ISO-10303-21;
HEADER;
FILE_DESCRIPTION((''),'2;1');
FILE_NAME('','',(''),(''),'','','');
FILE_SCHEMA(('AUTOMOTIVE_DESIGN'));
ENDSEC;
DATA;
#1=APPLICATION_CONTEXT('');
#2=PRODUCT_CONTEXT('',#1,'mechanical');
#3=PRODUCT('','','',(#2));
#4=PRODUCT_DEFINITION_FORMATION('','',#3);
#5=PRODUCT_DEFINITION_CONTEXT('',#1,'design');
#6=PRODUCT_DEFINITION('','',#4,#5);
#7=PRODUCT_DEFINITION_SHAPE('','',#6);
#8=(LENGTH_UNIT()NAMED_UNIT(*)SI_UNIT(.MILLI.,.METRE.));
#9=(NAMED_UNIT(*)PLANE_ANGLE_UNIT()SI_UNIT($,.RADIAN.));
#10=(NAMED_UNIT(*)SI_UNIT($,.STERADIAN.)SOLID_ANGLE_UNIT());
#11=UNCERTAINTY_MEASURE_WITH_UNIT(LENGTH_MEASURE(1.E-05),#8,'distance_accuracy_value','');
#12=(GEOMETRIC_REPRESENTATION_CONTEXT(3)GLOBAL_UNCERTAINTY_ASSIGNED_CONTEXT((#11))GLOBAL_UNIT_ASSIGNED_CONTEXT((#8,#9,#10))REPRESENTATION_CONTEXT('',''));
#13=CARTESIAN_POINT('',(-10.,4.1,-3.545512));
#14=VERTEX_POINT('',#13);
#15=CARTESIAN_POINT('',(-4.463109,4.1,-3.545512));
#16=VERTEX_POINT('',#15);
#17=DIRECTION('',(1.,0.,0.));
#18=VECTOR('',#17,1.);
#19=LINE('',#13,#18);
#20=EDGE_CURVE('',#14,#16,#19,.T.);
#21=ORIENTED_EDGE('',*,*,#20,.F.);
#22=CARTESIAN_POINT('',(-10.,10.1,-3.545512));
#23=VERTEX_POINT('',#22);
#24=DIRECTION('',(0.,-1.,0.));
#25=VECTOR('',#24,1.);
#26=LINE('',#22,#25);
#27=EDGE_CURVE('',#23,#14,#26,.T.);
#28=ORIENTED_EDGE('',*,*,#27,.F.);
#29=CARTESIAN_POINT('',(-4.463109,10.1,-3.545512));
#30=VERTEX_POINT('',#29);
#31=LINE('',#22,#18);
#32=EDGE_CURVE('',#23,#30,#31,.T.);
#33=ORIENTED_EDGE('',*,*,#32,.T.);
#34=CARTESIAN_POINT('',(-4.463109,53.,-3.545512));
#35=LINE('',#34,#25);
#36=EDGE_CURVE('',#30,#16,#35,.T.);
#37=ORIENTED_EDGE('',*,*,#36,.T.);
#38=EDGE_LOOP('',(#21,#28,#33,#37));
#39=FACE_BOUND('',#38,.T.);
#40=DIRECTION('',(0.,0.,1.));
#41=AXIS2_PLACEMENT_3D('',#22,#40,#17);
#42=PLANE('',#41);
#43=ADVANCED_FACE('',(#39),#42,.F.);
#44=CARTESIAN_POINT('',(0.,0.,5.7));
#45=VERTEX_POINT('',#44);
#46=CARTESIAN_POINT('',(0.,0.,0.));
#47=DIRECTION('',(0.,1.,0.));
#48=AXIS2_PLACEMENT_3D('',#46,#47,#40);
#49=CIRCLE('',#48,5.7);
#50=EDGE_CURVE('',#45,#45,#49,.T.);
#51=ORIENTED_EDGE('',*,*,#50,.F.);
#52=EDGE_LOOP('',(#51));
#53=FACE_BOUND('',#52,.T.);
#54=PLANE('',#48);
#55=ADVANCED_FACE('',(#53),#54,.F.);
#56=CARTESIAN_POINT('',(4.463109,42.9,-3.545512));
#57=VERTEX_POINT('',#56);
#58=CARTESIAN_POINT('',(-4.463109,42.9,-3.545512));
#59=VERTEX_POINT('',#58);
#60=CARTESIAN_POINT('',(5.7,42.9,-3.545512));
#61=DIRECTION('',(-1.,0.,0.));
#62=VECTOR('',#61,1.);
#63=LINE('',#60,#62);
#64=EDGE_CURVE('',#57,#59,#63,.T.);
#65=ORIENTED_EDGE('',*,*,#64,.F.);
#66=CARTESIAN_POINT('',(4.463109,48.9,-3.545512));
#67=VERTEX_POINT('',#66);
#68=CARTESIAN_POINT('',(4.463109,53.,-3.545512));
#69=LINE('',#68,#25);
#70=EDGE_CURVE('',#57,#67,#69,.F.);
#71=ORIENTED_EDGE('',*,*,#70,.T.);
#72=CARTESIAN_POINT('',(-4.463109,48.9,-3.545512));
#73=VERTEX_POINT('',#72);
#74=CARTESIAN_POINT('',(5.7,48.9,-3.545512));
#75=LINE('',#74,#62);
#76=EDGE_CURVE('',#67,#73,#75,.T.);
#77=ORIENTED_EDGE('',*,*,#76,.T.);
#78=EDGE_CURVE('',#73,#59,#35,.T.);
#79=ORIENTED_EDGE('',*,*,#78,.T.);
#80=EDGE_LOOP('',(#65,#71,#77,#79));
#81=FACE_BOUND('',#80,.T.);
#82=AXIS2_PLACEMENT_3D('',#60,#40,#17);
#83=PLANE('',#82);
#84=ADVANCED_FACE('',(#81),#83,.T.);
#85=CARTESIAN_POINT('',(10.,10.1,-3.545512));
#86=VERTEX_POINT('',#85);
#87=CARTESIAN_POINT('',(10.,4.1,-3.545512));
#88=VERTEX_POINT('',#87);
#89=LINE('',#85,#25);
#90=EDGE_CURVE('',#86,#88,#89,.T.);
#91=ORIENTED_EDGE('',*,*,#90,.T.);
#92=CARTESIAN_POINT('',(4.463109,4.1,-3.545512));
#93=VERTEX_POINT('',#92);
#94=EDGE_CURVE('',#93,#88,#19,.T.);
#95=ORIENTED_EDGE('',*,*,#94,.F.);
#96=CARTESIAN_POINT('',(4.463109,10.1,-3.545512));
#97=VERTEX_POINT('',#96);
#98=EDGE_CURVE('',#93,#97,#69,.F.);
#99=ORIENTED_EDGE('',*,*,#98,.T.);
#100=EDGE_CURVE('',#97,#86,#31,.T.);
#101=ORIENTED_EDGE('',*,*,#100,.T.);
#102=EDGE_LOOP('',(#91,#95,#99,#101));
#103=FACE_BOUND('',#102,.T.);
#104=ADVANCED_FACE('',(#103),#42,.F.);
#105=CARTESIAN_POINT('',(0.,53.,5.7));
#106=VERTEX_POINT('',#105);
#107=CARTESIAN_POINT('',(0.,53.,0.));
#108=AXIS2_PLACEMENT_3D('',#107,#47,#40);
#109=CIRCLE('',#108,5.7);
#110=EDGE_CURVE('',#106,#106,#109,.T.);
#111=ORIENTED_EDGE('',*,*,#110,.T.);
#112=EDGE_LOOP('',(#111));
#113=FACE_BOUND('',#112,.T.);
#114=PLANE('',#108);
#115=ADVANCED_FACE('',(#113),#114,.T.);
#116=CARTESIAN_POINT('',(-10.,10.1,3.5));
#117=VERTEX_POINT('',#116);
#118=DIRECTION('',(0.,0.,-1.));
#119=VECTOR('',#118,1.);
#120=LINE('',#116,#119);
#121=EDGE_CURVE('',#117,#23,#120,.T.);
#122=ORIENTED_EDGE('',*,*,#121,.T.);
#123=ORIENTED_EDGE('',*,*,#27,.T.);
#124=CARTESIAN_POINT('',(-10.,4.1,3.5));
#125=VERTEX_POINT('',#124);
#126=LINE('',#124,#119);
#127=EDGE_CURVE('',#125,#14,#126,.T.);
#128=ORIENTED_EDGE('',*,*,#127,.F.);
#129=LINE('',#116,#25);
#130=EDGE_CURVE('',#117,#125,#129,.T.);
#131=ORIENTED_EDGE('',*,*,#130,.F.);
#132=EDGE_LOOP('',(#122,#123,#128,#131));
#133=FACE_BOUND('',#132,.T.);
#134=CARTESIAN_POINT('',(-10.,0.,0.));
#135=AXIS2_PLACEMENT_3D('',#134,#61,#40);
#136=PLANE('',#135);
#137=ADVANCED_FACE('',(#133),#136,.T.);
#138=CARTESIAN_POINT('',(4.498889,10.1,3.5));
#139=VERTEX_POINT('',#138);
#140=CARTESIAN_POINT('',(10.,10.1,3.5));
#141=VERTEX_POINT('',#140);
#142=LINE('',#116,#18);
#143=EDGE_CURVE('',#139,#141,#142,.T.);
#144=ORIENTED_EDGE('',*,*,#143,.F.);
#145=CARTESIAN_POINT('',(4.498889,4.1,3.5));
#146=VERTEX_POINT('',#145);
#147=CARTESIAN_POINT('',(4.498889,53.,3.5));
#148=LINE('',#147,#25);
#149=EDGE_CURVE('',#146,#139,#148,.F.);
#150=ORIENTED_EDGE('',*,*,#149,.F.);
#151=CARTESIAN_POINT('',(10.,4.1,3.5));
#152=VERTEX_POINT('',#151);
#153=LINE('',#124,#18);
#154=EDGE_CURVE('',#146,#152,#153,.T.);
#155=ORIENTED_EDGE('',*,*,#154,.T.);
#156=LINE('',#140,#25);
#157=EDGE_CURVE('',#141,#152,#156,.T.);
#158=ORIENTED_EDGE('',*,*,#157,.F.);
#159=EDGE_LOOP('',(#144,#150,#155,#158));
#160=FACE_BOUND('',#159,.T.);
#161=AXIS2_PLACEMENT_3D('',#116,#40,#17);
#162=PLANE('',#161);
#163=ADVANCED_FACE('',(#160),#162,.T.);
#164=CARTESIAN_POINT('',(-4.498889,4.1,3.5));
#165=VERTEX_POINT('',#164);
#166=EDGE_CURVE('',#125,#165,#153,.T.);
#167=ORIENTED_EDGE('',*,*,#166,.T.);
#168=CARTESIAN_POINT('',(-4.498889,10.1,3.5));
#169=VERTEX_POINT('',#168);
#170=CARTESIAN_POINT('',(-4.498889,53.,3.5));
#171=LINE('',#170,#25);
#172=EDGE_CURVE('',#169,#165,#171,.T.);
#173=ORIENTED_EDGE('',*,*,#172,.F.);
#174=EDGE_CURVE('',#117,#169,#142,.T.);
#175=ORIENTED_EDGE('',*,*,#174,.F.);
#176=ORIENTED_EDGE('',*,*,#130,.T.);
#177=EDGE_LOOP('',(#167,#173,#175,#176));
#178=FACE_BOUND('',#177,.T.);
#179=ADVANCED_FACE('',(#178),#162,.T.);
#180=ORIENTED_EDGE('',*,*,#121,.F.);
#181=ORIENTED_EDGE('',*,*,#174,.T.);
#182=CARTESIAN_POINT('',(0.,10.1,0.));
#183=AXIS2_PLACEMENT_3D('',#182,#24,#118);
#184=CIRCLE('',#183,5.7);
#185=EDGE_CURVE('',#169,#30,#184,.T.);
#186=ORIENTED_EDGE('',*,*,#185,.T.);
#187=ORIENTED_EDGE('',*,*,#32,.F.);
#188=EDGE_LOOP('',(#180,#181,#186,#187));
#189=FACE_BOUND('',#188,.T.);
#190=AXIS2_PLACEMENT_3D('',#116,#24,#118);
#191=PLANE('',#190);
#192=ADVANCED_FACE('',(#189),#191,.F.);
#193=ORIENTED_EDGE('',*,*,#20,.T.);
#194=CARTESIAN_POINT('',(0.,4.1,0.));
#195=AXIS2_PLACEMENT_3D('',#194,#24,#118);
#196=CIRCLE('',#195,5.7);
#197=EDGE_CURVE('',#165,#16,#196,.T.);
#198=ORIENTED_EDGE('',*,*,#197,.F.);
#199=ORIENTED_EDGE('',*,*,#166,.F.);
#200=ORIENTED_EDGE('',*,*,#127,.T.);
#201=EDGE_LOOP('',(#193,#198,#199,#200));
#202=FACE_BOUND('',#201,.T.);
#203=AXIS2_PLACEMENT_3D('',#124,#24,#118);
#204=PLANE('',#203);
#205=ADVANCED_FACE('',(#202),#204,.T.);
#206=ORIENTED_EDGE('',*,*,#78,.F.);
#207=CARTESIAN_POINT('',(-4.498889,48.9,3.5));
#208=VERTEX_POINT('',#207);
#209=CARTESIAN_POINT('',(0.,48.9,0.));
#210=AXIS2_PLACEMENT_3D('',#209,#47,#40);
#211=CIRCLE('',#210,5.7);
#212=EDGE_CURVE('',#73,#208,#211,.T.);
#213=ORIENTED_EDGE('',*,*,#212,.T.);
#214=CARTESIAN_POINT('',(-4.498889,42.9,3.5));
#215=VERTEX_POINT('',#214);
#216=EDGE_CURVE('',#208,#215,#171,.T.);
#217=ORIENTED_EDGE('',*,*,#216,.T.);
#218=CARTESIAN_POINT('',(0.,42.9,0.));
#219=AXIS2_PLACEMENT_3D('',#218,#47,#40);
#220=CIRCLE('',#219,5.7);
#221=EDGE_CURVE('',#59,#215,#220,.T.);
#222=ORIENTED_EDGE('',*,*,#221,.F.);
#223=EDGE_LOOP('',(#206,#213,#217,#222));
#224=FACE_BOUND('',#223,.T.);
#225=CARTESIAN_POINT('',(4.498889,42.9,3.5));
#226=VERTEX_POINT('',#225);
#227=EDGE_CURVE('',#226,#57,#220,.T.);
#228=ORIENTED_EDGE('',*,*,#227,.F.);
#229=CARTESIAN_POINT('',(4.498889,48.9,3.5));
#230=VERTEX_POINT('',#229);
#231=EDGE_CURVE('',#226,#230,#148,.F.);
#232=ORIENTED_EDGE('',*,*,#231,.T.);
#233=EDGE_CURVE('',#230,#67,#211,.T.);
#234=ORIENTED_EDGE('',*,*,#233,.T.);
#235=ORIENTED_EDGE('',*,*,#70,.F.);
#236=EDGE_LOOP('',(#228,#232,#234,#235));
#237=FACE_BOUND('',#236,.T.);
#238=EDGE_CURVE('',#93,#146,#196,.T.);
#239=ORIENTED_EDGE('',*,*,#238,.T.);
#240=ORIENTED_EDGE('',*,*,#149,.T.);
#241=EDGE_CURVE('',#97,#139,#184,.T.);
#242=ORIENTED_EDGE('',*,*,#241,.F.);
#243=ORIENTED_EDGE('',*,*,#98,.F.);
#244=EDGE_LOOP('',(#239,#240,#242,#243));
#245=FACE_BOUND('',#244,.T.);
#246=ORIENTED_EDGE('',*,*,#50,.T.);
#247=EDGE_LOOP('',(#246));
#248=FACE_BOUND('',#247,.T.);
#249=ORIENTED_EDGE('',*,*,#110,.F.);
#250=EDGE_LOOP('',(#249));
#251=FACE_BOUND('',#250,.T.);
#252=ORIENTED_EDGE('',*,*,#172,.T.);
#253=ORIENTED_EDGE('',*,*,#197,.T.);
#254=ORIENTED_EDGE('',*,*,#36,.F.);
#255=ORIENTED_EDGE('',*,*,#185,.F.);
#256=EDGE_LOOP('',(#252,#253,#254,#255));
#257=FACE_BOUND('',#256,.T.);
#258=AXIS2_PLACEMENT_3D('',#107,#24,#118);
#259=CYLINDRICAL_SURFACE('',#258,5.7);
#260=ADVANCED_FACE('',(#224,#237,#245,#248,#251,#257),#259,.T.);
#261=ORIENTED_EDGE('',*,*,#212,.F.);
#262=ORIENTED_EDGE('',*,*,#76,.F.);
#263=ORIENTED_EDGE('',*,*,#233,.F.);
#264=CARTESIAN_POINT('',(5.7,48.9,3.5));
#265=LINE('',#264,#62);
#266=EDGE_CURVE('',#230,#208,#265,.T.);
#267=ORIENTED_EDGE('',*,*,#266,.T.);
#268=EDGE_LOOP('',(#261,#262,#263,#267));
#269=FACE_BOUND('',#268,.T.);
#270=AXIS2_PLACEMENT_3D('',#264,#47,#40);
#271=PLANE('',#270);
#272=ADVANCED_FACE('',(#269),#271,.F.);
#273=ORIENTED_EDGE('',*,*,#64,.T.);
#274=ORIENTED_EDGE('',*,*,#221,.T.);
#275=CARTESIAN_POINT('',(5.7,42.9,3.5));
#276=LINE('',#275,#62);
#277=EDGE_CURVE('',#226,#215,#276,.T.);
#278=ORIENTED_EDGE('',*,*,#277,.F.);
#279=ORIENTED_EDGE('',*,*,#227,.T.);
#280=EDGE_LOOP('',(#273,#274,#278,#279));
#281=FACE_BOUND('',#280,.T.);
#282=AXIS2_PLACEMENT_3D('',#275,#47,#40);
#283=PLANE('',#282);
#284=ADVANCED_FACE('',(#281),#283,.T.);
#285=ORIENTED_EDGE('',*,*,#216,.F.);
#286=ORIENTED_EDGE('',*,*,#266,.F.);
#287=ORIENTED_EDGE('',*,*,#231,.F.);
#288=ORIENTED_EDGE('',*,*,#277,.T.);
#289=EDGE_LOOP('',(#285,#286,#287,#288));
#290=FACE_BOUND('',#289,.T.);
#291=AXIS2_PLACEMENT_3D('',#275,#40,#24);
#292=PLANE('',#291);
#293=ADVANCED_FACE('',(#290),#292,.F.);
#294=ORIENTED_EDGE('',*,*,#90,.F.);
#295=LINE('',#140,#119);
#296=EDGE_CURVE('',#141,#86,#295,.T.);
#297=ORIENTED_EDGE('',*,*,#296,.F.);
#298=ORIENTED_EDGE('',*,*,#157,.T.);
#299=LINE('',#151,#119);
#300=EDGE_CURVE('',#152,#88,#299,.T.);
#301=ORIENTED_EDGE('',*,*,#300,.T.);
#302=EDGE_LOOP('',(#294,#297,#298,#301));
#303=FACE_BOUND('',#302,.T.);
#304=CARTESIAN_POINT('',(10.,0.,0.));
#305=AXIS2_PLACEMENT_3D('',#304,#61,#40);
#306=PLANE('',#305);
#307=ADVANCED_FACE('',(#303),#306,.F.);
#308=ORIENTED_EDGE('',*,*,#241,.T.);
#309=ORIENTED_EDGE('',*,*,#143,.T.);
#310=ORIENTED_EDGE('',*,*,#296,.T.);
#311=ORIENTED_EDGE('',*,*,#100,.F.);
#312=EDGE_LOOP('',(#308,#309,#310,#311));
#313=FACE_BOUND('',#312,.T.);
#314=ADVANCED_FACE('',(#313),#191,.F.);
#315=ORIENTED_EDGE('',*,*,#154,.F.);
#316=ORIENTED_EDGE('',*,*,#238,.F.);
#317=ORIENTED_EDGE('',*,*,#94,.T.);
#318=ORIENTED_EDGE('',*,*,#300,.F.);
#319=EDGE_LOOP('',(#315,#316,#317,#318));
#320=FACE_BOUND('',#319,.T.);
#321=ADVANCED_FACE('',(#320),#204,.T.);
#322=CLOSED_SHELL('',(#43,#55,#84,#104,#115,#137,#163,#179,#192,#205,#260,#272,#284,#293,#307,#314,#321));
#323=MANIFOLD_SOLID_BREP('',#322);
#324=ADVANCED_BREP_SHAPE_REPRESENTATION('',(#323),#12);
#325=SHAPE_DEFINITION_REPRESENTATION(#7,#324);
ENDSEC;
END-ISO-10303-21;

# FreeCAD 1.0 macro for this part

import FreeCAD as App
import Part
import Sketcher

V = App.Vector


def add_polygon(sketch, points):
    """Adds a closed chain of lines whose ends are joined by coincident constraints."""
    first, n = sketch.GeometryCount, len(points)
    for a, b in zip(points, points[1:] + points[:1]):
        sketch.addGeometry(Part.LineSegment(App.Vector(*a, 0), App.Vector(*b, 0)), False)
    for i in range(n):
        sketch.addConstraint(Sketcher.Constraint("Coincident", first + i, 2, first + (i + 1) % n, 1))

doc = App.newDocument("Part")
params = doc.addObject("Spreadsheet::Sheet", "Params")
for row, (alias, value) in enumerate([
    ("sketch1_diameter", "11.4 mm"),
    ("pad1_length", "53 mm"),
    ("sketch2_width", "6 mm"),
    ("sketch3_width", "6 mm"),
    ("pad2_length", "10 mm"),
    ("pad2_length2", "10 mm"),
], start=1):
    params.set(f"A{row}", alias)
    params.set(f"B{row}", "=" + value)
    params.setAlias(f"B{row}", alias)

body = doc.addObject("PartDesign::Body", "Body")

# Sketch on XZ plane
sketch1 = doc.addObject("Sketcher::SketchObject", "Sketch")
body.addObject(sketch1)
sketch1.AttachmentSupport = (doc.XZ_Plane, [""])
sketch1.MapMode = "FlatFace"
sketch1.addGeometry(Part.Circle(V(0, 0, 0), V(0, 0, 1), 6), False)
sketch1.addConstraint(Sketcher.Constraint("Coincident", 0, 3, -1, 1))
sketch1.addConstraint(Sketcher.Constraint("Diameter", 0, 11.4))
sketch1.setExpression("Constraints[1]", "Params.sketch1_diameter")
pad1 = doc.addObject("PartDesign::Pad", "Pad")
body.addObject(pad1)
pad1.Profile = sketch1
pad1.setExpression("Length", "Params.pad1_length")
pad1.Reversed = True

# Sketch on YZ plane
sketch2 = doc.addObject("Sketcher::SketchObject", "Sketch001")
body.addObject(sketch2)
sketch2.AttachmentSupport = (doc.YZ_Plane, [""])
sketch2.MapMode = "FlatFace"
add_polygon(sketch2, [(49, 4), (43, 4), (43, -4), (49, -4)])  # lines 0-3
sketch2.addConstraint(Sketcher.Constraint("Horizontal", 0))
sketch2.addConstraint(Sketcher.Constraint("Vertical", 1))
sketch2.addConstraint(Sketcher.Constraint("Horizontal", 2))
sketch2.addConstraint(Sketcher.Constraint("Vertical", 3))
sketch2.addConstraint(Sketcher.Constraint("DistanceX", 0, 2, 0, 1, 6.0))
sketch2.addConstraint(Sketcher.Constraint("DistanceX", -1, 1, 0, 2, 42.9))
sketch2.addConstraint(Sketcher.Constraint("DistanceY", -1, 1, 0, 2, 3.5))
sketch2.addConstraint(Sketcher.Constraint("DistanceY", 1, 2, 1, 1, 7.045512))
sketch2.setExpression("Constraints[8]", "Params.sketch2_width")
pocket1 = doc.addObject("PartDesign::Pocket", "Pocket")
body.addObject(pocket1)
pocket1.Profile = sketch2
pocket1.Type = "ThroughAll"
pocket1.Midplane = True

# Sketch on YZ plane
sketch3 = doc.addObject("Sketcher::SketchObject", "Sketch002")
body.addObject(sketch3)
sketch3.AttachmentSupport = (doc.YZ_Plane, [""])
sketch3.MapMode = "FlatFace"
add_polygon(sketch3, [(10, 4), (4, 4), (4, -4), (10, -4)])  # lines 0-3
sketch3.addConstraint(Sketcher.Constraint("Horizontal", 0))
sketch3.addConstraint(Sketcher.Constraint("Vertical", 1))
sketch3.addConstraint(Sketcher.Constraint("Horizontal", 2))
sketch3.addConstraint(Sketcher.Constraint("Vertical", 3))
sketch3.addConstraint(Sketcher.Constraint("DistanceX", 0, 2, 0, 1, 6.0))
sketch3.addConstraint(Sketcher.Constraint("DistanceX", -1, 1, 0, 2, 4.1))
sketch3.addConstraint(Sketcher.Constraint("DistanceY", -1, 1, 0, 2, 3.5))
sketch3.addConstraint(Sketcher.Constraint("DistanceY", 1, 2, 1, 1, 7.045512))
sketch3.setExpression("Constraints[8]", "Params.sketch3_width")
pad2 = doc.addObject("PartDesign::Pad", "Pad001")
body.addObject(pad2)
pad2.Profile = sketch3
pad2.Type = "TwoLengths"
pad2.setExpression("Length", "Params.pad2_length")
pad2.setExpression("Length2", "Params.pad2_length2")

doc.recompute()
